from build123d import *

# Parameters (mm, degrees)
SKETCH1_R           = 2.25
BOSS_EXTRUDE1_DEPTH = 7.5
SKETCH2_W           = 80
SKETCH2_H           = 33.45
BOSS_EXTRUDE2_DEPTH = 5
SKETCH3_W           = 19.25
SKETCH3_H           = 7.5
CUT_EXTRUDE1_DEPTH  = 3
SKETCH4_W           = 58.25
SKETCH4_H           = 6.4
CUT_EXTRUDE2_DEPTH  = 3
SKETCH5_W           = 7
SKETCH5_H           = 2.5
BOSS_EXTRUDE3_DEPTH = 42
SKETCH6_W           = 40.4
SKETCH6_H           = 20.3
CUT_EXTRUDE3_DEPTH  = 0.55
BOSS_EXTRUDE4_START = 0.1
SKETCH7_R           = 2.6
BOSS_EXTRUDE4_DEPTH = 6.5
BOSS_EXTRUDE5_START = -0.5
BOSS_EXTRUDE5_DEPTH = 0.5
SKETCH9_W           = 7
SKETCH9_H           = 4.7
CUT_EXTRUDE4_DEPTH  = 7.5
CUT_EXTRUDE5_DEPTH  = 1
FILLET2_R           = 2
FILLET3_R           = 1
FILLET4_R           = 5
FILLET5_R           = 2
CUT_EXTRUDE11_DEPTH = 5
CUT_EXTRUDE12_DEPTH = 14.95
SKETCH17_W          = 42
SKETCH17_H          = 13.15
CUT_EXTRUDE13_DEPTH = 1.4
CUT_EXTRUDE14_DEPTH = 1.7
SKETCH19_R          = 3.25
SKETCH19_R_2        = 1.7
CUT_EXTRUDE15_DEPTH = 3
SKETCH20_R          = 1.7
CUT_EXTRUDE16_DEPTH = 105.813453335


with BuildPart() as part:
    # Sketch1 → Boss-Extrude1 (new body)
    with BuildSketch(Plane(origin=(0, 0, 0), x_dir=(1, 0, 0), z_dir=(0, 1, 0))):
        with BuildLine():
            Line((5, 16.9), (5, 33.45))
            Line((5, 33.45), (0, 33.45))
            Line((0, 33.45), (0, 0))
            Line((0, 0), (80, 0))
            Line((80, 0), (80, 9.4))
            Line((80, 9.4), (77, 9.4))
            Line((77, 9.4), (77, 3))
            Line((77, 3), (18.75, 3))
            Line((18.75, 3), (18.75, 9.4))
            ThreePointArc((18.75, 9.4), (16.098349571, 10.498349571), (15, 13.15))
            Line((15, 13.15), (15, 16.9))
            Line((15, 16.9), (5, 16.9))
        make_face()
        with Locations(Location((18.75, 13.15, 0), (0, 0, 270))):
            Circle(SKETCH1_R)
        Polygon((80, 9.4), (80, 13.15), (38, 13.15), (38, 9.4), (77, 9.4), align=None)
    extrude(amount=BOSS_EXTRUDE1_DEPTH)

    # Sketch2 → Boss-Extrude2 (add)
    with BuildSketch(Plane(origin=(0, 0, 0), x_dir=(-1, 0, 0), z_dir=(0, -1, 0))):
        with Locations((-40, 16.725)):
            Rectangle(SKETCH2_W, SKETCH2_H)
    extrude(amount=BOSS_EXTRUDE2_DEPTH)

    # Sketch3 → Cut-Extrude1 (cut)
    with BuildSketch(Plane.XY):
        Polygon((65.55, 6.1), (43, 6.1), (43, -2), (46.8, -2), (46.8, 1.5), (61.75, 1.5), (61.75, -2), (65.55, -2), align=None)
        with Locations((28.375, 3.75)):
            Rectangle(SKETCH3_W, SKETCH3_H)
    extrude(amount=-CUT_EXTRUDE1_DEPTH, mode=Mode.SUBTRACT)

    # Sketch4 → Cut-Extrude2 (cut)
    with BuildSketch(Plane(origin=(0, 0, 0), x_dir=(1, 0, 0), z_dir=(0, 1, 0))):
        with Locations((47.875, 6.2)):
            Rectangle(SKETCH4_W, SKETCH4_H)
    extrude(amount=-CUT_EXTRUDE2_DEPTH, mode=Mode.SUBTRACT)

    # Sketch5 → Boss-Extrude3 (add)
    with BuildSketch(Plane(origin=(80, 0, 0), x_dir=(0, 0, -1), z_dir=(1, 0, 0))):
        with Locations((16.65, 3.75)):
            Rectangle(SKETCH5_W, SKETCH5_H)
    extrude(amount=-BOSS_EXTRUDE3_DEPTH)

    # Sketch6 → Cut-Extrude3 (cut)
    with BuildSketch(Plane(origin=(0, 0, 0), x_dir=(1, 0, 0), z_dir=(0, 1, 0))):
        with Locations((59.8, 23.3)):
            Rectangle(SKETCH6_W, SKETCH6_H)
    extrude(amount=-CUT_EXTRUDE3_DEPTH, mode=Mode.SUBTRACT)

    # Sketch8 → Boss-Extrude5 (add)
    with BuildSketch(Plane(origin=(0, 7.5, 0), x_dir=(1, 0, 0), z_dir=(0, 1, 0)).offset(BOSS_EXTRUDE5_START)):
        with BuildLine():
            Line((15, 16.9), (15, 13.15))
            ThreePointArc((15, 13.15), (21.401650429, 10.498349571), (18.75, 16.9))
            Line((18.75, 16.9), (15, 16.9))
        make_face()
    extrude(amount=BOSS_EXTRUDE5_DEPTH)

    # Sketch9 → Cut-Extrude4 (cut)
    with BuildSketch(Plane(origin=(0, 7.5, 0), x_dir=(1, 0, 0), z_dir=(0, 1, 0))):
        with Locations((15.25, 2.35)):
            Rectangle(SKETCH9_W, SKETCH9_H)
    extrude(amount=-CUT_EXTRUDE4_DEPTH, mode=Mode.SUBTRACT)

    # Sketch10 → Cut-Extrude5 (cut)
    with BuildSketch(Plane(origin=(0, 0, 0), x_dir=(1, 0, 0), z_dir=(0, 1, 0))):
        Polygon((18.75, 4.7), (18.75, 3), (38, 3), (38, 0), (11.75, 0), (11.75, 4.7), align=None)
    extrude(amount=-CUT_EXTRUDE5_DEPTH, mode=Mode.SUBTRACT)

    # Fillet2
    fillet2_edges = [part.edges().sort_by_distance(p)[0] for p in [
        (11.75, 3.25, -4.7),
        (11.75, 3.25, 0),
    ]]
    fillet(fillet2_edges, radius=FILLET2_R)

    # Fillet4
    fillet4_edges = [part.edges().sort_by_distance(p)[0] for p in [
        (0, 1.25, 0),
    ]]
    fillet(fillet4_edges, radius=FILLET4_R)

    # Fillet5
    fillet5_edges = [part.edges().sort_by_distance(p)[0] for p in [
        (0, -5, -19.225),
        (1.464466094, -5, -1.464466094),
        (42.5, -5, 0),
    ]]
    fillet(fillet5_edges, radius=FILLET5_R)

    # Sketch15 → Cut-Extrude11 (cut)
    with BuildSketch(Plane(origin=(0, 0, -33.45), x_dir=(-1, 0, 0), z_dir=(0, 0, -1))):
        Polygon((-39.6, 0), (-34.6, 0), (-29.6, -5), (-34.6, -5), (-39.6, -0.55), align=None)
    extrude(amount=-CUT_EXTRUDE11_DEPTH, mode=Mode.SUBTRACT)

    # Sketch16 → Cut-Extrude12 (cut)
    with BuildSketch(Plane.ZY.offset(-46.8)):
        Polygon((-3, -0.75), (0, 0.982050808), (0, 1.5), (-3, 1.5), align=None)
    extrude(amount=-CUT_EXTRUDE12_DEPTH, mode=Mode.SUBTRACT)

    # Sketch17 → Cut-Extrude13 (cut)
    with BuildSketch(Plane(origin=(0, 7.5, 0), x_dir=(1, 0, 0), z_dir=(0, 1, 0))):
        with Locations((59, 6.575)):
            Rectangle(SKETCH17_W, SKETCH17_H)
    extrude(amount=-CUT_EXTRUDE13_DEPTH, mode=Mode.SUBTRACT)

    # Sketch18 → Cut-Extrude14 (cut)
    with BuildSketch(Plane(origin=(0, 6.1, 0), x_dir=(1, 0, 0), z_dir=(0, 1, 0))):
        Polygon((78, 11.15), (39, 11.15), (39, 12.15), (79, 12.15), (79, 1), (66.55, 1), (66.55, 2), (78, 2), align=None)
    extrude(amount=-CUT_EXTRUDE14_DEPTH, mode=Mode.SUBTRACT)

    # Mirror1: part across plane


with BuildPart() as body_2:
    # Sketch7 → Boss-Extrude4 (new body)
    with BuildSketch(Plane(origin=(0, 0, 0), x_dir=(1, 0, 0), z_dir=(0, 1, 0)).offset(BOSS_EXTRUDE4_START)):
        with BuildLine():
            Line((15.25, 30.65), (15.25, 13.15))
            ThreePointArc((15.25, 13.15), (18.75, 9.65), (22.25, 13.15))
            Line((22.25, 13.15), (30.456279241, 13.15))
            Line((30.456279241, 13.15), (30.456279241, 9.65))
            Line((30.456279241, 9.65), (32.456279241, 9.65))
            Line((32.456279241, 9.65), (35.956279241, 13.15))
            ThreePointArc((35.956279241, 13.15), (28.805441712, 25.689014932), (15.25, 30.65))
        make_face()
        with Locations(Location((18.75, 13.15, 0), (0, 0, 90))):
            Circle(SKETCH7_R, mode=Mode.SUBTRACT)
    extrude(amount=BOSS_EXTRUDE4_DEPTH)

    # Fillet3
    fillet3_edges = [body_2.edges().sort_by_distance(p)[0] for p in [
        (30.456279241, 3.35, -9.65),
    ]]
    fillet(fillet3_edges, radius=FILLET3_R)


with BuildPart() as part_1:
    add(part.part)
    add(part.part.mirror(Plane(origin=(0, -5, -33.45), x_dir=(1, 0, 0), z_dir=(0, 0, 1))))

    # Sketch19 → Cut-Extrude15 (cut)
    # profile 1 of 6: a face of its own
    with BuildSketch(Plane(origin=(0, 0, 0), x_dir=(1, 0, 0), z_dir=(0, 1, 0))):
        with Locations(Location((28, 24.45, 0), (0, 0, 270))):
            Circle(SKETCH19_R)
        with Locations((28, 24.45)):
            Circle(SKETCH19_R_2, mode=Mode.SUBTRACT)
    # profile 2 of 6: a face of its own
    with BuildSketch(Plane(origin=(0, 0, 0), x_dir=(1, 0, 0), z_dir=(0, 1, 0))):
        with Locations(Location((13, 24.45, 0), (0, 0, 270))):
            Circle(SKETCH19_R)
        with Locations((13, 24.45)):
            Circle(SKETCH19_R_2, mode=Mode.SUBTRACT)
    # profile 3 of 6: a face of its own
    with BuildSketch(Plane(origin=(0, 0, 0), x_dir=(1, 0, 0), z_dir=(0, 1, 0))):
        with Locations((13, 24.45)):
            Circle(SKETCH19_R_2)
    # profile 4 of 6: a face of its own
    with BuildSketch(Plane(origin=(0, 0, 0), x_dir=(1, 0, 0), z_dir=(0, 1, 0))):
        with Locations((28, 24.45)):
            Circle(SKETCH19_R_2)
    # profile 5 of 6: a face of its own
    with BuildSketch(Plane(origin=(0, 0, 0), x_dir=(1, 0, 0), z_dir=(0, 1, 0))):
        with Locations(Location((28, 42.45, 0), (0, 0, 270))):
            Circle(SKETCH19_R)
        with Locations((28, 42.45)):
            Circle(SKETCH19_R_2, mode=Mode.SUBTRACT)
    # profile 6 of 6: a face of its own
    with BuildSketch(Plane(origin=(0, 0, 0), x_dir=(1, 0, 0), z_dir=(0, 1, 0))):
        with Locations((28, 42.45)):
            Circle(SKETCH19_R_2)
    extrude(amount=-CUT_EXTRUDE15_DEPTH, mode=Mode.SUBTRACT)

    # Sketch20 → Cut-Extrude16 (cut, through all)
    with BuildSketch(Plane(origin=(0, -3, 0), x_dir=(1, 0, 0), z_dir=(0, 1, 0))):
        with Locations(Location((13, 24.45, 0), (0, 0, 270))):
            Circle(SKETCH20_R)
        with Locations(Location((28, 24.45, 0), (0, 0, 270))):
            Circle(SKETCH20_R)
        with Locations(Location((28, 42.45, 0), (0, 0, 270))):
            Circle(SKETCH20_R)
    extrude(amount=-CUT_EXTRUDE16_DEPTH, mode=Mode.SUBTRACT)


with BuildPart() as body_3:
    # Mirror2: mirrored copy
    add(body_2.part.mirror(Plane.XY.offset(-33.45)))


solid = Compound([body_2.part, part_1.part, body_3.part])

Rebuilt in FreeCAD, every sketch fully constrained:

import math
import FreeCAD as App
import Part
import Sketcher
from FreeCAD import Vector
Q = App.Units.Quantity


def edges_at(feature, points):
    """Names of the edges that pass closest to the given points."""
    edges = feature.Shape.Edges
    near = lambda p: min(range(len(edges)), key=lambda i: edges[i].distToShape(Part.Vertex(*p))[0])
    return sorted({f"Edge{near(p) + 1}" for p in points})

doc = App.newDocument("Part")
body = doc.addObject("PartDesign::Body", "Body")
body.AllowCompound = True

sketch1 = body.newObject("Sketcher::SketchObject", "Sketch")
sketch1.AttachmentSupport = (doc.getObject("XZ_Plane"), [""])
sketch1.MapMode = "FlatFace"
sketch1.addGeometry([
    Part.LineSegment(Vector(5, -16.9, 0), Vector(5, -33.5, 0)),
    Part.LineSegment(Vector(5, -33.5, 0), Vector(0, -33.5, 0)),
    Part.LineSegment(Vector(0, -33.5, 0), Vector(0, 0, 0)),
    Part.LineSegment(Vector(0, 0, 0), Vector(80, 0, 0)),
    Part.LineSegment(Vector(80, 0, 0), Vector(80, -13.2, 0)),
    Part.LineSegment(Vector(80, -13.2, 0), Vector(38, -13.2, 0)),
    Part.LineSegment(Vector(38, -13.2, 0), Vector(38, -9.4, 0)),
    Part.LineSegment(Vector(38, -9.4, 0), Vector(77, -9.4, 0)),
    Part.LineSegment(Vector(77, -9.4, 0), Vector(77, -3, 0)),
    Part.LineSegment(Vector(77, -3, 0), Vector(18.8, -3, 0)),
    Part.LineSegment(Vector(18.8, -3, 0), Vector(18.8, -9.4, 0)),
    Part.ArcOfCircle(Part.Circle(Vector(18.8, -13.2, 0), Vector(0, 0, 1), 3.8), math.radians(90), math.radians(180)),
    Part.LineSegment(Vector(15, -13.2, 0), Vector(15, -16.9, 0)),
    Part.LineSegment(Vector(15, -16.9, 0), Vector(5, -16.9, 0)),
    Part.Circle(Vector(18.8, -13.2, 0), Vector(0, 0, 1), 2.2),
], False)
sketch1.addConstraint([
    Sketcher.Constraint("Coincident", 0, 2, 1, 1),
    Sketcher.Constraint("Coincident", 1, 2, 2, 1),
    Sketcher.Constraint("Coincident", 2, 2, 3, 1),
    Sketcher.Constraint("Coincident", 3, 2, 4, 1),
    Sketcher.Constraint("Coincident", 4, 2, 5, 1),
    Sketcher.Constraint("Coincident", 5, 2, 6, 1),
    Sketcher.Constraint("Coincident", 6, 2, 7, 1),
    Sketcher.Constraint("Coincident", 7, 2, 8, 1),
    Sketcher.Constraint("Coincident", 8, 2, 9, 1),
    Sketcher.Constraint("Coincident", 9, 2, 10, 1),
    Sketcher.Constraint("Coincident", 10, 2, 11, 1),
    Sketcher.Constraint("Tangent", 11, 2, 12, 1),
    Sketcher.Constraint("Coincident", 12, 2, 13, 1),
    Sketcher.Constraint("Coincident", 13, 2, 0, 1),
    Sketcher.Constraint("Vertical", 0),
    Sketcher.Constraint("Horizontal", 1),
    Sketcher.Constraint("Vertical", 2),
    Sketcher.Constraint("Horizontal", 3),
    Sketcher.Constraint("Vertical", 4),
    Sketcher.Constraint("Horizontal", 5),
    Sketcher.Constraint("Vertical", 6),
    Sketcher.Constraint("Horizontal", 7),
    Sketcher.Constraint("Vertical", 8),
    Sketcher.Constraint("Horizontal", 9),
    Sketcher.Constraint("Vertical", 10),
    Sketcher.Constraint("Vertical", 12),
    Sketcher.Constraint("Horizontal", 13),
    Sketcher.Constraint("Coincident", 2, 2, -1, 1),
    Sketcher.Constraint("Coincident", 14, 3, 11, 3),
    Sketcher.Constraint("Horizontal", 14, 3, 4, 2),
    Sketcher.Constraint("Horizontal", 7, 2, 10, 2),
    Sketcher.Constraint("Vertical", 14, 3, 9, 2),
    Sketcher.Constraint("Equal", 6, 12),
    Sketcher.Constraint("Diameter", 14, 4.5),
    Sketcher.Constraint("DistanceX", 1, 2, 1, 1, 5.0),
    Sketcher.Constraint("DistanceX", 3, 1, 3, 2, 80.0),
    Sketcher.Constraint("DistanceX", 5, 2, 5, 1, 42.0),
    Sketcher.Constraint("DistanceX", 7, 1, 7, 2, 39.0),
    Sketcher.Constraint("DistanceX", 13, 2, 13, 1, 10.0),
    Sketcher.Constraint("Radius", 11, 3.75),
    Sketcher.Constraint("DistanceY", 8, 1, 8, 2, 6.4),
    Sketcher.Constraint("DistanceY", 8, 2, -1, 1, 3.0),
    Sketcher.Constraint("DistanceY", 0, 2, 0, 1, 16.55),
])
pad1 = body.newObject("PartDesign::Pad", "Pad")
pad1.Profile = sketch1
pad1.Length = 7.5
pad1.Reversed = True

sketch2 = body.newObject("Sketcher::SketchObject", "Sketch001")
sketch2.AttachmentSupport = (doc.getObject("XZ_Plane"), [""])
sketch2.MapMode = "FlatFace"
sketch2.addGeometry([
    Part.LineSegment(Vector(80, -33, 0), Vector(80, 0, 0)),
    Part.LineSegment(Vector(80, 0, 0), Vector(0, 0, 0)),
    Part.LineSegment(Vector(0, 0, 0), Vector(0, -33, 0)),
    Part.LineSegment(Vector(0, -33, 0), Vector(80, -33, 0)),
], False)
sketch2.addConstraint([
    Sketcher.Constraint("Coincident", 0, 2, 1, 1),
    Sketcher.Constraint("Coincident", 1, 2, 2, 1),
    Sketcher.Constraint("Coincident", 2, 2, 3, 1),
    Sketcher.Constraint("Coincident", 3, 2, 0, 1),
    Sketcher.Constraint("Vertical", 0),
    Sketcher.Constraint("Horizontal", 1),
    Sketcher.Constraint("Vertical", 2),
    Sketcher.Constraint("Horizontal", 3),
    Sketcher.Constraint("Coincident", 1, 2, -1, 1),
    Sketcher.Constraint("DistanceX", 1, 2, 1, 1, 80.0),
    Sketcher.Constraint("DistanceY", 0, 1, 0, 2, 33.45),
])
pad2 = body.newObject("PartDesign::Pad", "Pad001")
pad2.Profile = sketch2
pad2.Length = 5

sketch3 = body.newObject("Sketcher::SketchObject", "Sketch002")
sketch3.AttachmentSupport = (doc.getObject("XY_Plane"), [""])
sketch3.MapMode = "FlatFace"
sketch3.addGeometry([
    Part.LineSegment(Vector(65.5, 6.1, 0), Vector(43, 6.1, 0)),
    Part.LineSegment(Vector(43, 6.1, 0), Vector(43, -2, 0)),
    Part.LineSegment(Vector(43, -2, 0), Vector(46.8, -2, 0)),
    Part.LineSegment(Vector(46.8, -2, 0), Vector(46.8, 1.5, 0)),
    Part.LineSegment(Vector(46.8, 1.5, 0), Vector(61.8, 1.5, 0)),
    Part.LineSegment(Vector(61.8, 1.5, 0), Vector(61.8, -2, 0)),
    Part.LineSegment(Vector(61.8, -2, 0), Vector(65.5, -2, 0)),
    Part.LineSegment(Vector(65.5, -2, 0), Vector(65.5, 6.1, 0)),
    Part.LineSegment(Vector(18.8, 7.5, 0), Vector(18.8, 0, 0)),
    Part.LineSegment(Vector(18.8, 0, 0), Vector(38, 0, 0)),
    Part.LineSegment(Vector(38, 0, 0), Vector(38, 7.5, 0)),
    Part.LineSegment(Vector(38, 7.5, 0), Vector(18.8, 7.5, 0)),
], False)
sketch3.addConstraint([
    Sketcher.Constraint("Coincident", 0, 2, 1, 1),
    Sketcher.Constraint("Coincident", 1, 2, 2, 1),
    Sketcher.Constraint("Coincident", 2, 2, 3, 1),
    Sketcher.Constraint("Coincident", 3, 2, 4, 1),
    Sketcher.Constraint("Coincident", 4, 2, 5, 1),
    Sketcher.Constraint("Coincident", 5, 2, 6, 1),
    Sketcher.Constraint("Coincident", 6, 2, 7, 1),
    Sketcher.Constraint("Coincident", 7, 2, 0, 1),
    Sketcher.Constraint("Coincident", 8, 2, 9, 1),
    Sketcher.Constraint("Coincident", 9, 2, 10, 1),
    Sketcher.Constraint("Coincident", 10, 2, 11, 1),
    Sketcher.Constraint("Coincident", 11, 2, 8, 1),
    Sketcher.Constraint("Horizontal", 0),
    Sketcher.Constraint("Vertical", 1),
    Sketcher.Constraint("Horizontal", 2),
    Sketcher.Constraint("Vertical", 3),
    Sketcher.Constraint("Horizontal", 4),
    Sketcher.Constraint("Vertical", 5),
    Sketcher.Constraint("Horizontal", 6),
    Sketcher.Constraint("Vertical", 7),
    Sketcher.Constraint("Vertical", 8),
    Sketcher.Constraint("Horizontal", 9),
    Sketcher.Constraint("Vertical", 10),
    Sketcher.Constraint("Horizontal", 11),
    Sketcher.Constraint("PointOnObject", 8, 2, -1),
    Sketcher.Constraint("Horizontal", 2, 2, 5, 2),
    Sketcher.Constraint("Equal", 2, 6),
    Sketcher.Constraint("DistanceX", 2, 1, 2, 2, 3.8),
    Sketcher.Constraint("DistanceY", 1, 2, 1, 1, 8.1),
    Sketcher.Constraint("DistanceY", 3, 1, 3, 2, 3.5),
    Sketcher.Constraint("DistanceY", 8, 2, 8, 1, 7.5),
    Sketcher.Constraint("DistanceX", -1, 1, 0, 2, 43.0),
    Sketcher.Constraint("DistanceY", 1, 2, -1, 1, 2.0),
    Sketcher.Constraint("DistanceX", -1, 1, 9, 2, 38.0),
    Sketcher.Constraint("DistanceX", 8, 2, 4, 2, 43.0),
    Sketcher.Constraint("DistanceX", 0, 2, 0, 1, 22.55),
])
pocket1 = body.newObject("PartDesign::Pocket", "Pocket")
pocket1.Profile = sketch3
pocket1.Length = 3

sketch4 = body.newObject("Sketcher::SketchObject", "Sketch003")
sketch4.AttachmentSupport = (doc.getObject("XZ_Plane"), [""])
sketch4.MapMode = "FlatFace"
sketch4.addGeometry([
    Part.LineSegment(Vector(19, -9, 0), Vector(19, -3, 0)),
    Part.LineSegment(Vector(19, -3, 0), Vector(77, -3, 0)),
    Part.LineSegment(Vector(77, -3, 0), Vector(77, -9, 0)),
    Part.LineSegment(Vector(77, -9, 0), Vector(19, -9, 0)),
], False)
sketch4.addConstraint([
    Sketcher.Constraint("Coincident", 0, 2, 1, 1),
    Sketcher.Constraint("Coincident", 1, 2, 2, 1),
    Sketcher.Constraint("Coincident", 2, 2, 3, 1),
    Sketcher.Constraint("Coincident", 3, 2, 0, 1),
    Sketcher.Constraint("Vertical", 0),
    Sketcher.Constraint("Horizontal", 1),
    Sketcher.Constraint("Vertical", 2),
    Sketcher.Constraint("Horizontal", 3),
    Sketcher.Constraint("DistanceY", 0, 1, 0, 2, 6.4),
    Sketcher.Constraint("DistanceY", 0, 2, -1, 1, 3.0),
    Sketcher.Constraint("DistanceX", -1, 1, 1, 2, 77.0),
    Sketcher.Constraint("DistanceX", 1, 1, 1, 2, 58.25),
])
pocket2 = body.newObject("PartDesign::Pocket", "Pocket001")
pocket2.Profile = sketch4
pocket2.Length = 3
pocket2.Reversed = True

sketch5 = body.newObject("Sketcher::SketchObject", "Sketch004")
sketch5.AttachmentSupport = (doc.getObject("YZ_Plane"), [""])
sketch5.MapMode = "FlatFace"
sketch5.AttachmentOffset = App.Placement(Vector(0, 0, 80), App.Rotation())
sketch5.addGeometry([
    Part.LineSegment(Vector(5, -13.2, 0), Vector(2.5, -13.2, 0)),
    Part.LineSegment(Vector(2.5, -13.2, 0), Vector(2.5, -20.1, 0)),
    Part.LineSegment(Vector(2.5, -20.1, 0), Vector(5, -20.1, 0)),
    Part.LineSegment(Vector(5, -20.1, 0), Vector(5, -13.2, 0)),
], False)
sketch5.addConstraint([
    Sketcher.Constraint("Coincident", 0, 2, 1, 1),
    Sketcher.Constraint("Coincident", 1, 2, 2, 1),
    Sketcher.Constraint("Coincident", 2, 2, 3, 1),
    Sketcher.Constraint("Coincident", 3, 2, 0, 1),
    Sketcher.Constraint("Horizontal", 0),
    Sketcher.Constraint("Vertical", 1),
    Sketcher.Constraint("Horizontal", 2),
    Sketcher.Constraint("Vertical", 3),
    Sketcher.Constraint("DistanceY", 1, 2, 1, 1, 7.0),
    Sketcher.Constraint("DistanceX", 0, 2, 0, 1, 2.5),
    Sketcher.Constraint("DistanceX", -1, 1, 2, 2, 5.0),
    Sketcher.Constraint("DistanceY", 0, 2, -1, 1, 13.15),
])
pad3 = body.newObject("PartDesign::Pad", "Pad002")
pad3.Profile = sketch5
pad3.Length = 42
pad3.Reversed = True

sketch6 = body.newObject("Sketcher::SketchObject", "Sketch005")
sketch6.AttachmentSupport = (doc.getObject("XZ_Plane"), [""])
sketch6.MapMode = "FlatFace"
sketch6.addGeometry([
    Part.LineSegment(Vector(40, -33, 0), Vector(40, -13, 0)),
    Part.LineSegment(Vector(40, -13, 0), Vector(80, -13, 0)),
    Part.LineSegment(Vector(80, -13, 0), Vector(80, -33, 0)),
    Part.LineSegment(Vector(80, -33, 0), Vector(40, -33, 0)),
], False)
sketch6.addConstraint([
    Sketcher.Constraint("Coincident", 0, 2, 1, 1),
    Sketcher.Constraint("Coincident", 1, 2, 2, 1),
    Sketcher.Constraint("Coincident", 2, 2, 3, 1),
    Sketcher.Constraint("Coincident", 3, 2, 0, 1),
    Sketcher.Constraint("Vertical", 0),
    Sketcher.Constraint("Horizontal", 1),
    Sketcher.Constraint("Vertical", 2),
    Sketcher.Constraint("Horizontal", 3),
    Sketcher.Constraint("DistanceX", 1, 1, 1, 2, 40.4),
    Sketcher.Constraint("DistanceY", 0, 1, 0, 2, 20.3),
    Sketcher.Constraint("DistanceX", -1, 1, 1, 2, 80.0),
    Sketcher.Constraint("DistanceY", 0, 2, -1, 1, 13.15),
])
pocket3 = body.newObject("PartDesign::Pocket", "Pocket002")
pocket3.Profile = sketch6
pocket3.Length = 0.55
pocket3.Reversed = True

sketch7 = body.newObject("Sketcher::SketchObject", "Sketch006")
sketch7.AttachmentSupport = (doc.getObject("XZ_Plane"), [""])
sketch7.MapMode = "FlatFace"
sketch7.AttachmentOffset = App.Placement(Vector(0, 0, -7), App.Rotation())
sketch7.addGeometry([
    Part.LineSegment(Vector(15, -16.9, 0), Vector(15, -13.2, 0)),
    Part.ArcOfCircle(Part.Circle(Vector(18.8, -13.2, 0), Vector(0, 0, 1), 3.8), math.radians(-90), math.radians(180)),
    Part.LineSegment(Vector(18.8, -16.9, 0), Vector(15, -16.9, 0)),
], False)
sketch7.addConstraint([
    Sketcher.Constraint("Tangent", 0, 2, 1, 2),
    Sketcher.Constraint("Tangent", 1, 1, 2, 1),
    Sketcher.Constraint("Coincident", 2, 2, 0, 1),
    Sketcher.Constraint("Vertical", 0),
    Sketcher.Constraint("Horizontal", 2),
    Sketcher.Constraint("Radius", 1, 3.75),
    Sketcher.Constraint("DistanceX", -1, 1, 0, 2, 15.0),
    Sketcher.Constraint("DistanceY", 1, 1, -1, 1, 16.9),
])
pad4 = body.newObject("PartDesign::Pad", "Pad003")
pad4.Profile = sketch7
pad4.Length = 0.5
pad4.Reversed = True

sketch8 = body.newObject("Sketcher::SketchObject", "Sketch007")
sketch8.AttachmentSupport = (doc.getObject("XZ_Plane"), [""])
sketch8.MapMode = "FlatFace"
sketch8.AttachmentOffset = App.Placement(Vector(0, 0, -7.5), App.Rotation())
sketch8.addGeometry([
    Part.LineSegment(Vector(11.8, -4.7, 0), Vector(11.8, 0, 0)),
    Part.LineSegment(Vector(11.8, 0, 0), Vector(18.8, 0, 0)),
    Part.LineSegment(Vector(18.8, 0, 0), Vector(18.8, -4.7, 0)),
    Part.LineSegment(Vector(18.8, -4.7, 0), Vector(11.8, -4.7, 0)),
], False)
sketch8.addConstraint([
    Sketcher.Constraint("Coincident", 0, 2, 1, 1),
    Sketcher.Constraint("Coincident", 1, 2, 2, 1),
    Sketcher.Constraint("Coincident", 2, 2, 3, 1),
    Sketcher.Constraint("Coincident", 3, 2, 0, 1),
    Sketcher.Constraint("Vertical", 0),
    Sketcher.Constraint("Horizontal", 1),
    Sketcher.Constraint("Vertical", 2),
    Sketcher.Constraint("Horizontal", 3),
    Sketcher.Constraint("PointOnObject", 0, 2, -1),
    Sketcher.Constraint("DistanceX", 1, 1, 1, 2, 7.0),
    Sketcher.Constraint("DistanceY", 0, 1, 0, 2, 4.7),
    Sketcher.Constraint("DistanceX", -1, 1, 0, 2, 11.75),
])
pocket4 = body.newObject("PartDesign::Pocket", "Pocket003")
pocket4.Profile = sketch8
pocket4.Length = 7.5
pocket4.Reversed = True

sketch9 = body.newObject("Sketcher::SketchObject", "Sketch008")
sketch9.AttachmentSupport = (doc.getObject("XZ_Plane"), [""])
sketch9.MapMode = "FlatFace"
sketch9.addGeometry([
    Part.LineSegment(Vector(18.8, -3, 0), Vector(18.8, -4.7, 0)),
    Part.LineSegment(Vector(18.8, -4.7, 0), Vector(11.8, -4.7, 0)),
    Part.LineSegment(Vector(11.8, -4.7, 0), Vector(11.8, 0, 0)),
    Part.LineSegment(Vector(11.8, 0, 0), Vector(38, 0, 0)),
    Part.LineSegment(Vector(38, 0, 0), Vector(38, -3, 0)),
    Part.LineSegment(Vector(38, -3, 0), Vector(18.8, -3, 0)),
], False)
sketch9.addConstraint([
    Sketcher.Constraint("Coincident", 0, 2, 1, 1),
    Sketcher.Constraint("Coincident", 1, 2, 2, 1),
    Sketcher.Constraint("Coincident", 2, 2, 3, 1),
    Sketcher.Constraint("Coincident", 3, 2, 4, 1),
    Sketcher.Constraint("Coincident", 4, 2, 5, 1),
    Sketcher.Constraint("Coincident", 5, 2, 0, 1),
    Sketcher.Constraint("Vertical", 0),
    Sketcher.Constraint("Horizontal", 1),
    Sketcher.Constraint("Vertical", 2),
    Sketcher.Constraint("Horizontal", 3),
    Sketcher.Constraint("Vertical", 4),
    Sketcher.Constraint("Horizontal", 5),
    Sketcher.Constraint("PointOnObject", 2, 2, -1),
    Sketcher.Constraint("DistanceX", 1, 2, 1, 1, 7.0),
    Sketcher.Constraint("DistanceY", 4, 2, 4, 1, 3.0),
    Sketcher.Constraint("DistanceY", 0, 2, 0, 1, 1.7),
    Sketcher.Constraint("DistanceX", -1, 1, 3, 2, 38.0),
    Sketcher.Constraint("DistanceX", 3, 1, 3, 2, 26.25),
])
pocket5 = body.newObject("PartDesign::Pocket", "Pocket004")
pocket5.Profile = sketch9
pocket5.Length = 1
pocket5.Reversed = True
doc.recompute()

fillet = body.newObject("PartDesign::Fillet", "Fillet")
fillet.Base = (pocket5, edges_at(pocket5, [(11.75, 3.25, -4.7), (11.75, 3.25, 0)]))
fillet.Radius = 2
doc.recompute()

fillet2 = body.newObject("PartDesign::Fillet", "Fillet001")
fillet2.Base = (fillet, edges_at(fillet, [(0, 1.25, 0)]))
fillet2.Radius = 5
doc.recompute()

fillet3 = body.newObject("PartDesign::Fillet", "Fillet002")
fillet3.Base = (fillet2, edges_at(fillet2, [(0, -5, -19.225), (1.464, -5, -1.464), (42.5, -5, 0)]))
fillet3.Radius = 2

sketch10 = body.newObject("Sketcher::SketchObject", "Sketch009")
sketch10.AttachmentSupport = (doc.getObject("XY_Plane"), [""])
sketch10.MapMode = "FlatFace"
sketch10.AttachmentOffset = App.Placement(Vector(0, 0, -33.45), App.Rotation())
sketch10.addGeometry([
    Part.LineSegment(Vector(34.6, 0, 0), Vector(39.6, 0, 0)),
    Part.LineSegment(Vector(39.6, 0, 0), Vector(39.6, -0.6, 0)),
    Part.LineSegment(Vector(39.6, -0.6, 0), Vector(34.6, -5, 0)),
    Part.LineSegment(Vector(34.6, -5, 0), Vector(29.6, -5, 0)),
    Part.LineSegment(Vector(29.6, -5, 0), Vector(34.6, 0, 0)),
], False)
sketch10.addConstraint([
    Sketcher.Constraint("Coincident", 0, 2, 1, 1),
    Sketcher.Constraint("Coincident", 1, 2, 2, 1),
    Sketcher.Constraint("Coincident", 2, 2, 3, 1),
    Sketcher.Constraint("Coincident", 3, 2, 4, 1),
    Sketcher.Constraint("Coincident", 4, 2, 0, 1),
    Sketcher.Constraint("Horizontal", 0),
    Sketcher.Constraint("Vertical", 1),
    Sketcher.Constraint("Horizontal", 3),
    Sketcher.Constraint("PointOnObject", 0, 2, -1),
    Sketcher.Constraint("Vertical", 2, 2, 4, 2),
    Sketcher.Constraint("Equal", 0, 3),
    Sketcher.Constraint("DistanceX", 0, 1, 0, 2, 5.0),
    Sketcher.Constraint("Angle", 4, Q("45 deg")),
    Sketcher.Constraint("DistanceY", 1, 2, 1, 1, 0.55),
    Sketcher.Constraint("DistanceX", -1, 1, 0, 2, 39.6),
])
pocket6 = body.newObject("PartDesign::Pocket", "Pocket005")
pocket6.Profile = sketch10
pocket6.Length = 5
pocket6.Reversed = True

sketch11 = body.newObject("Sketcher::SketchObject", "Sketch010")
sketch11.AttachmentSupport = (doc.getObject("YZ_Plane"), [""])
sketch11.MapMode = "FlatFace"
sketch11.AttachmentOffset = App.Placement(Vector(0, 0, 46.8), App.Rotation())
sketch11.addGeometry([
    Part.LineSegment(Vector(-0.8, -3, 0), Vector(1, 0, 0)),
    Part.LineSegment(Vector(1, 0, 0), Vector(1.5, 0, 0)),
    Part.LineSegment(Vector(1.5, 0, 0), Vector(1.5, -3, 0)),
    Part.LineSegment(Vector(1.5, -3, 0), Vector(-0.8, -3, 0)),
], False)
sketch11.addConstraint([
    Sketcher.Constraint("Coincident", 0, 2, 1, 1),
    Sketcher.Constraint("Coincident", 1, 2, 2, 1),
    Sketcher.Constraint("Coincident", 2, 2, 3, 1),
    Sketcher.Constraint("Coincident", 3, 2, 0, 1),
    Sketcher.Constraint("Horizontal", 1),
    Sketcher.Constraint("Vertical", 2),
    Sketcher.Constraint("Horizontal", 3),
    Sketcher.Constraint("PointOnObject", 0, 2, -1),
    Sketcher.Constraint("DistanceY", 2, 2, 2, 1, 3.0),
    Sketcher.Constraint("Angle", 0, Q("60 deg")),
    Sketcher.Constraint("DistanceX", 3, 2, 3, 1, 2.25),
    Sketcher.Constraint("DistanceX", -1, 1, 1, 2, 1.5),
])
pocket7 = body.newObject("PartDesign::Pocket", "Pocket006")
pocket7.Profile = sketch11
pocket7.Length = 14.95
pocket7.Reversed = True

sketch12 = body.newObject("Sketcher::SketchObject", "Sketch011")
sketch12.AttachmentSupport = (doc.getObject("XZ_Plane"), [""])
sketch12.MapMode = "FlatFace"
sketch12.AttachmentOffset = App.Placement(Vector(0, 0, -7.5), App.Rotation())
sketch12.addGeometry([
    Part.LineSegment(Vector(38, -13, 0), Vector(38, 0, 0)),
    Part.LineSegment(Vector(38, 0, 0), Vector(80, 0, 0)),
    Part.LineSegment(Vector(80, 0, 0), Vector(80, -13, 0)),
    Part.LineSegment(Vector(80, -13, 0), Vector(38, -13, 0)),
], False)
sketch12.addConstraint([
    Sketcher.Constraint("Coincident", 0, 2, 1, 1),
    Sketcher.Constraint("Coincident", 1, 2, 2, 1),
    Sketcher.Constraint("Coincident", 2, 2, 3, 1),
    Sketcher.Constraint("Coincident", 3, 2, 0, 1),
    Sketcher.Constraint("Vertical", 0),
    Sketcher.Constraint("Horizontal", 1),
    Sketcher.Constraint("Vertical", 2),
    Sketcher.Constraint("Horizontal", 3),
    Sketcher.Constraint("PointOnObject", 0, 2, -1),
    Sketcher.Constraint("DistanceX", 1, 1, 1, 2, 42.0),
    Sketcher.Constraint("DistanceX", -1, 1, 0, 2, 38.0),
    Sketcher.Constraint("DistanceY", 0, 1, 0, 2, 13.15),
])
pocket8 = body.newObject("PartDesign::Pocket", "Pocket007")
pocket8.Profile = sketch12
pocket8.Length = 1.4
pocket8.Reversed = True

sketch13 = body.newObject("Sketcher::SketchObject", "Sketch012")
sketch13.AttachmentSupport = (doc.getObject("XZ_Plane"), [""])
sketch13.MapMode = "FlatFace"
sketch13.AttachmentOffset = App.Placement(Vector(0, 0, -6.1), App.Rotation())
sketch13.addGeometry([
    Part.LineSegment(Vector(39, -11.2, 0), Vector(78, -11.2, 0)),
    Part.LineSegment(Vector(78, -11.2, 0), Vector(78, -2, 0)),
    Part.LineSegment(Vector(78, -2, 0), Vector(66.5, -2, 0)),
    Part.LineSegment(Vector(66.5, -2, 0), Vector(66.5, -1, 0)),
    Part.LineSegment(Vector(66.5, -1, 0), Vector(79, -1, 0)),
    Part.LineSegment(Vector(79, -1, 0), Vector(79, -12.2, 0)),
    Part.LineSegment(Vector(79, -12.2, 0), Vector(39, -12.2, 0)),
    Part.LineSegment(Vector(39, -12.2, 0), Vector(39, -11.2, 0)),
], False)
sketch13.addConstraint([
    Sketcher.Constraint("Coincident", 0, 2, 1, 1),
    Sketcher.Constraint("Coincident", 1, 2, 2, 1),
    Sketcher.Constraint("Coincident", 2, 2, 3, 1),
    Sketcher.Constraint("Coincident", 3, 2, 4, 1),
    Sketcher.Constraint("Coincident", 4, 2, 5, 1),
    Sketcher.Constraint("Coincident", 5, 2, 6, 1),
    Sketcher.Constraint("Coincident", 6, 2, 7, 1),
    Sketcher.Constraint("Coincident", 7, 2, 0, 1),
    Sketcher.Constraint("Horizontal", 0),
    Sketcher.Constraint("Vertical", 1),
    Sketcher.Constraint("Horizontal", 2),
    Sketcher.Constraint("Vertical", 3),
    Sketcher.Constraint("Horizontal", 4),
    Sketcher.Constraint("Vertical", 5),
    Sketcher.Constraint("Horizontal", 6),
    Sketcher.Constraint("Vertical", 7),
    Sketcher.Constraint("Equal", 3, 7),
    Sketcher.Constraint("DistanceX", 0, 1, 0, 2, 39.0),
    Sketcher.Constraint("DistanceX", 6, 2, 6, 1, 40.0),
    Sketcher.Constraint("DistanceY", 3, 1, 3, 2, 1.0),
    Sketcher.Constraint("DistanceX", -1, 1, 0, 2, 78.0),
    Sketcher.Constraint("DistanceY", 1, 2, -1, 1, 2.0),
    Sketcher.Constraint("DistanceX", 2, 2, 2, 1, 11.45),
    Sketcher.Constraint("DistanceY", 1, 1, 1, 2, 9.15),
])
pocket9 = body.newObject("PartDesign::Pocket", "Pocket008")
pocket9.Profile = sketch13
pocket9.Length = 1.7
pocket9.Reversed = True
body2 = doc.addObject("PartDesign::Body", "Body001")

sketch14 = body2.newObject("Sketcher::SketchObject", "Sketch013")
sketch14.AttachmentSupport = (doc.getObject("XZ_Plane001"), [""])
sketch14.MapMode = "FlatFace"
sketch14.AttachmentOffset = App.Placement(Vector(0, 0, -0.1), App.Rotation())
sketch14.addGeometry([
    Part.LineSegment(Vector(15.2, -30.6, 0), Vector(15.2, -13.2, 0)),
    Part.ArcOfCircle(Part.Circle(Vector(18.8, -13.2, 0), Vector(0, 0, 1), 3.5), math.radians(0), math.radians(180)),
    Part.LineSegment(Vector(22.2, -13.2, 0), Vector(30.5, -13.2, 0)),
    Part.LineSegment(Vector(30.5, -13.2, 0), Vector(30.5, -9.7, 0)),
    Part.LineSegment(Vector(30.5, -9.7, 0), Vector(32.5, -9.7, 0)),
    Part.LineSegment(Vector(32.5, -9.7, 0), Vector(36, -13.2, 0)),
    Part.ArcOfCircle(Part.Circle(Vector(15.2, -9.6, 0), Vector(0, 0, 1), 21), math.radians(-90), math.radians(-10)),
    Part.Circle(Vector(18.8, -13.2, 0), Vector(0, 0, 1), 2.6),
], False)
sketch14.addConstraint([
    Sketcher.Constraint("Tangent", 0, 2, 1, 2),
    Sketcher.Constraint("Coincident", 1, 1, 2, 1),
    Sketcher.Constraint("Coincident", 2, 2, 3, 1),
    Sketcher.Constraint("Coincident", 3, 2, 4, 1),
    Sketcher.Constraint("Coincident", 4, 2, 5, 1),
    Sketcher.Constraint("Coincident", 5, 2, 6, 2),
    Sketcher.Constraint("Coincident", 6, 1, 0, 1),
    Sketcher.Constraint("Vertical", 0),
    Sketcher.Constraint("Horizontal", 2),
    Sketcher.Constraint("Vertical", 3),
    Sketcher.Constraint("Horizontal", 4),
    Sketcher.Constraint("Coincident", 7, 3, 1, 3),
    Sketcher.Constraint("Horizontal", 0, 2, 1, 1),
    Sketcher.Constraint("Horizontal", 6, 3, 3, 2),
    Sketcher.Constraint("Horizontal", 2, 2, 5, 2),
    Sketcher.Constraint("Vertical", 6, 3, 0, 2),
    Sketcher.Constraint("Radius", 6, 21.0),
    Sketcher.Constraint("Diameter", 7, 5.2),
    Sketcher.Constraint("Radius", 1, 3.5),
    Sketcher.Constraint("DistanceX", 4, 1, 4, 2, 2.0),
    Sketcher.Constraint("Angle", 5, Q("-45 deg")),
    Sketcher.Constraint("DistanceY", 0, 1, 0, 2, 17.5),
    Sketcher.Constraint("DistanceX", -1, 1, 1, 3, 18.75),
    Sketcher.Constraint("DistanceY", 1, 3, -1, 1, 13.15),
])
pad5 = body2.newObject("PartDesign::Pad", "Pad004")
pad5.Profile = sketch14
pad5.Length = 6.5
pad5.Reversed = True
doc.recompute()

fillet4 = body2.newObject("PartDesign::Fillet", "Fillet003")
fillet4.Base = (pad5, edges_at(pad5, [(30.456, 3.35, -9.65)]))
fillet4.Radius = 1
body3 = doc.addObject("PartDesign::Body", "Body002")
doc.recompute()

body3.BaseFeature = body
doc.recompute()

mirroring = doc.addObject("Part::Mirroring", "Mirroring")
mirroring.Source = body
mirroring.Base = Vector(0, -5, -33.45)
mirroring.Normal = Vector(0, 0, 1)
body4 = doc.addObject("PartDesign::Body", "Body003")
body4.BaseFeature = mirroring
boolean = body3.newObject("PartDesign::Boolean", "Boolean")
boolean.Type = "Fuse"
boolean.addObjects([body4])
doc.recompute()

sketch15 = body3.newObject("Sketcher::SketchObject", "Sketch014")
sketch15.AttachmentSupport = (doc.getObject("XZ_Plane002"), [""])
sketch15.MapMode = "FlatFace"
sketch15.addGeometry([
    Part.Circle(Vector(28, -24.4, 0), Vector(0, 0, 1), 3.2),
    Part.Circle(Vector(13, -24.4, 0), Vector(0, 0, 1), 3.2),
    Part.Circle(Vector(28, -42.5, 0), Vector(0, 0, 1), 3.2),
], False)
sketch15.addConstraint([
    Sketcher.Constraint("Equal", 0, 1),
    Sketcher.Constraint("Equal", 1, 2),
    Sketcher.Constraint("Horizontal", 0, 3, 1, 3),
    Sketcher.Constraint("Vertical", 0, 3, 2, 3),
    Sketcher.Constraint("Diameter", 0, 6.5),
    Sketcher.Constraint("DistanceX", -1, 1, 0, 3, 28.0),
    Sketcher.Constraint("DistanceX", -1, 1, 1, 3, 13.0),
    Sketcher.Constraint("DistanceY", 2, 3, 0, 3, 18.0),
    Sketcher.Constraint("DistanceY", 0, 3, -1, 1, 24.45),
])
pocket10 = body3.newObject("PartDesign::Pocket", "Pocket009")
pocket10.Profile = sketch15
pocket10.Length = 3
pocket10.Reversed = True

sketch16 = body3.newObject("Sketcher::SketchObject", "Sketch015")
sketch16.AttachmentSupport = (doc.getObject("XZ_Plane002"), [""])
sketch16.MapMode = "FlatFace"
sketch16.AttachmentOffset = App.Placement(Vector(0, 0, 3), App.Rotation())
sketch16.addGeometry([
    Part.Circle(Vector(13, -24.4, 0), Vector(0, 0, 1), 1.7),
    Part.Circle(Vector(28, -24.4, 0), Vector(0, 0, 1), 1.7),
    Part.Circle(Vector(28, -42.5, 0), Vector(0, 0, 1), 1.7),
], False)
sketch16.addConstraint([
    Sketcher.Constraint("Equal", 0, 1),
    Sketcher.Constraint("Equal", 1, 2),
    Sketcher.Constraint("Horizontal", 0, 3, 1, 3),
    Sketcher.Constraint("Vertical", 1, 3, 2, 3),
    Sketcher.Constraint("Diameter", 0, 3.4),
    Sketcher.Constraint("DistanceX", -1, 1, 0, 3, 13.0),
    Sketcher.Constraint("DistanceX", -1, 1, 1, 3, 28.0),
    Sketcher.Constraint("DistanceY", 2, 3, 1, 3, 18.0),
    Sketcher.Constraint("DistanceY", 0, 3, -1, 1, 24.45),
])
pocket11 = body3.newObject("PartDesign::Pocket", "Pocket010")
pocket11.Profile = sketch16
pocket11.Type = "ThroughAll"
pocket11.Reversed = True
body5 = doc.addObject("PartDesign::Body", "Body004")
doc.recompute()

mirroring2 = doc.addObject("Part::Mirroring", "Mirroring001")
mirroring2.Source = body2
mirroring2.Base = Vector(0, 0, -33.45)
mirroring2.Normal = Vector(0, 0, 1)
body5.BaseFeature = mirroring2
doc.recompute()
mirroring.Visibility = False
mirroring2.Visibility = False

doc.recompute()
